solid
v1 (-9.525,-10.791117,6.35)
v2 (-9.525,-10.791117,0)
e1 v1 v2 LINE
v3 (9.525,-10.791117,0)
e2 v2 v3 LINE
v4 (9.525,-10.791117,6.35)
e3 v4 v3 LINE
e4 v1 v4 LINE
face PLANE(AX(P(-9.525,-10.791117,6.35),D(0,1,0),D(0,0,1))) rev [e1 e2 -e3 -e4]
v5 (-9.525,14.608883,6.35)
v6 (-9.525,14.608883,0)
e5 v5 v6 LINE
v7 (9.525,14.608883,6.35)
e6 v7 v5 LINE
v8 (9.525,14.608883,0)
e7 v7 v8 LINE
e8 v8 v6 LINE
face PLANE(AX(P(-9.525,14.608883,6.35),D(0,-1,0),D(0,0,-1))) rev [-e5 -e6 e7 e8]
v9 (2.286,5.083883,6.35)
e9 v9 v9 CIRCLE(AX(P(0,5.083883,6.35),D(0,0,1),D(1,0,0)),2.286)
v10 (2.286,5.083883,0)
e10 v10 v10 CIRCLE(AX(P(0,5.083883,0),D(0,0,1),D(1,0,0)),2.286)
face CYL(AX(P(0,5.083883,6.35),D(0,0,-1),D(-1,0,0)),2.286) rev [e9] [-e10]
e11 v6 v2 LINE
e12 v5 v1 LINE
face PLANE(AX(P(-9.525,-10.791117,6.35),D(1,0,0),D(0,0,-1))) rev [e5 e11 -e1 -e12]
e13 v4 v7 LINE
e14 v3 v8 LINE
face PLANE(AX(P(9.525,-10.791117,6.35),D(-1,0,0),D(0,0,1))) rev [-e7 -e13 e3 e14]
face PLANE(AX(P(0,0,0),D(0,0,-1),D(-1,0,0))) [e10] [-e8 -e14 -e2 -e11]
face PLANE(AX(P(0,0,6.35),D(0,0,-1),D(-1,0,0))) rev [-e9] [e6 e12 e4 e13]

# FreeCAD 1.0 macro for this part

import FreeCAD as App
import Part
import Sketcher
Q = App.Units.Quantity


def add_polygon(sketch, points):
    """Adds a closed chain of lines whose ends are joined by coincident constraints."""
    first, n = sketch.GeometryCount, len(points)
    for a, b in zip(points, points[1:] + points[:1]):
        sketch.addGeometry(Part.LineSegment(App.Vector(*a, 0), App.Vector(*b, 0)), False)
    for i in range(n):
        sketch.addConstraint(Sketcher.Constraint("Coincident", first + i, 2, first + (i + 1) % n, 1))

doc = App.newDocument("Part")
body = doc.addObject("PartDesign::Body", "Body")

# Sketch on XY plane
sketch1 = body.newObject("Sketcher::SketchObject", "Sketch")
sketch1.AttachmentSupport = (doc.getObject("XY_Plane"), [""])
sketch1.MapMode = "FlatFace"
add_polygon(sketch1, [(-9.525, 14.608883), (-9.525, -10.791117), (9.525, -10.791117), (9.525, 14.608883)])  # lines 0-3
sketch1.addGeometry(Part.Circle(App.Vector(0, 5.083883, 0), App.Vector(0, 0, 1), 2.286), False)  # 4
sketch1.addConstraint(Sketcher.Constraint("Vertical", 0))
sketch1.addConstraint(Sketcher.Constraint("Horizontal", 1))
sketch1.addConstraint(Sketcher.Constraint("Vertical", 2))
sketch1.addConstraint(Sketcher.Constraint("Horizontal", 3))
sketch1.addConstraint(Sketcher.Constraint("PointOnObject", 4, 3, -2))
sketch1.addConstraint(Sketcher.Constraint("Diameter", 4, Q("0.18 in")))
sketch1.addConstraint(Sketcher.Constraint("DistanceY", 0, 2, 0, 1, Q("1 in")))
sketch1.addConstraint(Sketcher.Constraint("DistanceX", 1, 1, 1, 2, Q("0.75 in")))
sketch1.addConstraint(Sketcher.Constraint("DistanceX", 0, 2, -1, 1, Q("0.375 in")))
sketch1.addConstraint(Sketcher.Constraint("DistanceY", 0, 2, 4, 3, Q("0.625 in")))
sketch1.addConstraint(Sketcher.Constraint("DistanceY", -1, 1, 4, 3, 5.083883))
pad1 = body.newObject("PartDesign::Pad", "Pad")
pad1.Profile = sketch1
pad1.Length = Q("0.25 in")

doc.recompute()
